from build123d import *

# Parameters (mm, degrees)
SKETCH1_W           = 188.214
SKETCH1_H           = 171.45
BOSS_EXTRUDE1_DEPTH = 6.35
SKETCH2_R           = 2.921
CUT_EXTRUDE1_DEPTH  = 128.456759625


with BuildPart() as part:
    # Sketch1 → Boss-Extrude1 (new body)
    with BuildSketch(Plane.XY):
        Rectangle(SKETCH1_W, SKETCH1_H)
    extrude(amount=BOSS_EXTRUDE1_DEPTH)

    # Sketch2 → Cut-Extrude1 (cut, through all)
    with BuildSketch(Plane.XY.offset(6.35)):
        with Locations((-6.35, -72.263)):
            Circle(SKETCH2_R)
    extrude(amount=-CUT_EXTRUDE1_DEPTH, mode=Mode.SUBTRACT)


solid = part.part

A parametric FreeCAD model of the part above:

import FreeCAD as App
import Part
import Sketcher
from FreeCAD import Vector
Q = App.Units.Quantity

doc = App.newDocument("Part")
body = doc.addObject("PartDesign::Body", "Body")

sketch1 = doc.addObject("Sketcher::SketchObject", "Sketch")
body.addObject(sketch1)
sketch1.AttachmentSupport = (doc.XY_Plane, [""])
sketch1.MapMode = "FlatFace"
sketch1.addGeometry(Part.LineSegment(Vector(-94, 86, 0), Vector(-94, -86, 0)), False)
sketch1.addGeometry(Part.LineSegment(Vector(-94, -86, 0), Vector(94, -86, 0)), False)
sketch1.addGeometry(Part.LineSegment(Vector(94, -86, 0), Vector(94, 86, 0)), False)
sketch1.addGeometry(Part.LineSegment(Vector(94, 86, 0), Vector(-94, 86, 0)), False)
sketch1.addConstraint(Sketcher.Constraint("Coincident", 0, 2, 1, 1))
sketch1.addConstraint(Sketcher.Constraint("Coincident", 1, 2, 2, 1))
sketch1.addConstraint(Sketcher.Constraint("Coincident", 2, 2, 3, 1))
sketch1.addConstraint(Sketcher.Constraint("Coincident", 3, 2, 0, 1))
sketch1.addConstraint(Sketcher.Constraint("Vertical", 0))
sketch1.addConstraint(Sketcher.Constraint("Horizontal", 1))
sketch1.addConstraint(Sketcher.Constraint("Vertical", 2))
sketch1.addConstraint(Sketcher.Constraint("Horizontal", 3))
sketch1.addConstraint(Sketcher.Constraint("Symmetric", 0, 2, 2, 2, -1, 1))
sketch1.addConstraint(Sketcher.Constraint("DistanceX", 1, 1, 1, 2, Q("7.41 in")))
sketch1.addConstraint(Sketcher.Constraint("DistanceY", 0, 2, 0, 1, Q("6.75 in")))
pad1 = doc.addObject("PartDesign::Pad", "Pad")
body.addObject(pad1)
pad1.Profile = sketch1
pad1.Length = Q("0.25 in")

sketch2 = doc.addObject("Sketcher::SketchObject", "Sketch001")
body.addObject(sketch2)
sketch2.AttachmentSupport = (doc.XY_Plane, [""])
sketch2.MapMode = "FlatFace"
sketch2.AttachmentOffset = App.Placement(Vector(0, 0, 0.25 * 25.4), App.Rotation())
sketch2.addGeometry(Part.Circle(Vector(-6.3, -72.3, 0), Vector(0, 0, 1), 2.9), False)
sketch2.addConstraint(Sketcher.Constraint("Diameter", 0, Q("0.23 in")))
sketch2.addConstraint(Sketcher.Constraint("DistanceX", 0, 3, -1, 1, Q("0.25 in")))
sketch2.addConstraint(Sketcher.Constraint("DistanceY", 0, 3, -1, 1, Q("2.845 in")))
pocket1 = doc.addObject("PartDesign::Pocket", "Pocket")
body.addObject(pocket1)
pocket1.Profile = sketch2
pocket1.Type = "ThroughAll"

doc.recompute()
